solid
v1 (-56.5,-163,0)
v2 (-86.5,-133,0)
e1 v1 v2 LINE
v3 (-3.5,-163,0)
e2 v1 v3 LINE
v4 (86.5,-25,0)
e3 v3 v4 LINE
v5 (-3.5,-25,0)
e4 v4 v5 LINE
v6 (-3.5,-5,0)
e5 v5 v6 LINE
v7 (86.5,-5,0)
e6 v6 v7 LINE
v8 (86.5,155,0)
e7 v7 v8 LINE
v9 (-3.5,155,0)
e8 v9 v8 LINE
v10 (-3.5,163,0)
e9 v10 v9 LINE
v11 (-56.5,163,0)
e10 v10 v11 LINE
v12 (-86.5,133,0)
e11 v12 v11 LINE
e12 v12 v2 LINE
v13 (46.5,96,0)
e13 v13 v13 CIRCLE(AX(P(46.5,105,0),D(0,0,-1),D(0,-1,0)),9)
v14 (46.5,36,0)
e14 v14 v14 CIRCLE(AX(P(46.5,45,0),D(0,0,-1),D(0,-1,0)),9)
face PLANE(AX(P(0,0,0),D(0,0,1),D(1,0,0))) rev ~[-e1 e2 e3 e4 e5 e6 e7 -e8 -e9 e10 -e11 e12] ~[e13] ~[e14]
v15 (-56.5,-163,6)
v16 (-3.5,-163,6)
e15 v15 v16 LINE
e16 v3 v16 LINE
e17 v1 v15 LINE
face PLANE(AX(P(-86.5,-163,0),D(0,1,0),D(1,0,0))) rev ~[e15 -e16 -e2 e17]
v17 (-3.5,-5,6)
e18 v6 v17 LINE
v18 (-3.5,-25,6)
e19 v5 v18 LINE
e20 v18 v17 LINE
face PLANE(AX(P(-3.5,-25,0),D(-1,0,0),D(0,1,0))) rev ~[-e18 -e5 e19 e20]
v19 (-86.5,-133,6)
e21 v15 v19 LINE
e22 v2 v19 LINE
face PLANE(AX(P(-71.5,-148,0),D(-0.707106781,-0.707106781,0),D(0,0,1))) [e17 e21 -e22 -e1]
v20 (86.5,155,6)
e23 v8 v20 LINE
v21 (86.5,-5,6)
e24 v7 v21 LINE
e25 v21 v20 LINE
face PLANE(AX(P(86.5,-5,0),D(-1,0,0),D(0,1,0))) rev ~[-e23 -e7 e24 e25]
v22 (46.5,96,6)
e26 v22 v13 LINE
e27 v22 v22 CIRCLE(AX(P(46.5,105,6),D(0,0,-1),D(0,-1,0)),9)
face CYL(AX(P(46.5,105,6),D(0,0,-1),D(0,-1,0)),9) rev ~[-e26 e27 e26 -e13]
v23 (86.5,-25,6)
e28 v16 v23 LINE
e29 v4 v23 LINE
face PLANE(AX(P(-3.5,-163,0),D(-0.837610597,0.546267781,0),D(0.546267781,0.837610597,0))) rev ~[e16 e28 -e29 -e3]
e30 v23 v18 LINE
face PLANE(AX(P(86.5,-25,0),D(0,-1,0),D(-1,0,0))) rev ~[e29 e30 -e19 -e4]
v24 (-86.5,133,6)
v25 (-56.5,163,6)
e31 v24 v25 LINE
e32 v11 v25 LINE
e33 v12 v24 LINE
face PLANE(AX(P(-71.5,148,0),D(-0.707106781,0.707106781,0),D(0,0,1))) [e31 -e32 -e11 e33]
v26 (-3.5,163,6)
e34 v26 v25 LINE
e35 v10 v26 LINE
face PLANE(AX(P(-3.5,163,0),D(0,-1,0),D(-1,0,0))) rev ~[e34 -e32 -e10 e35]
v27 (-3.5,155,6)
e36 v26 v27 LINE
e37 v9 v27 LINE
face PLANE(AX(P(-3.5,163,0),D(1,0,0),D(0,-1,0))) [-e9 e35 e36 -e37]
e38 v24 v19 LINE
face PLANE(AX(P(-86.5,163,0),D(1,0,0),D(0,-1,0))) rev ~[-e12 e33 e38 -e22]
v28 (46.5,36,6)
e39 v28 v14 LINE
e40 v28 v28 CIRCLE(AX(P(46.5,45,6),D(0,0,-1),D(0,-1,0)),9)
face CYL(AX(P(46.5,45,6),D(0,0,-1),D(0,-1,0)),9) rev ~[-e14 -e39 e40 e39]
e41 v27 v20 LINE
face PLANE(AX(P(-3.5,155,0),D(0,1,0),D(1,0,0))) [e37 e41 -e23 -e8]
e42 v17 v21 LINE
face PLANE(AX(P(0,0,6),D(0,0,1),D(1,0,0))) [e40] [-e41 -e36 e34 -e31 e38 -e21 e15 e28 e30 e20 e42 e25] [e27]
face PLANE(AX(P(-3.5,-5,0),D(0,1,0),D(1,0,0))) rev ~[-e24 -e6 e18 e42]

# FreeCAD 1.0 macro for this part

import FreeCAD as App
import Part
import Sketcher
from FreeCAD import Vector
Q = App.Units.Quantity


def edges_at(feature, points):
    """Names of the edges that pass closest to the given points."""
    edges = feature.Shape.Edges
    near = lambda p: min(range(len(edges)), key=lambda i: edges[i].distToShape(Part.Vertex(*p))[0])
    return sorted({f"Edge{near(p) + 1}" for p in points})


def add_polygon(sketch, points):
    """Adds a closed chain of lines whose ends are joined by coincident constraints."""
    first, n = sketch.GeometryCount, len(points)
    for a, b in zip(points, points[1:] + points[:1]):
        sketch.addGeometry(Part.LineSegment(App.Vector(*a, 0), App.Vector(*b, 0)), False)
    for i in range(n):
        sketch.addConstraint(Sketcher.Constraint("Coincident", first + i, 2, first + (i + 1) % n, 1))

doc = App.newDocument("Part")
body = doc.addObject("PartDesign::Body", "Body")

# Sketch on XY plane
sketch1 = doc.addObject("Sketcher::SketchObject", "Sketch")
body.addObject(sketch1)
sketch1.AttachmentSupport = (doc.XY_Plane, [""])
sketch1.MapMode = "FlatFace"
add_polygon(sketch1, [(-4, 155), (-4, 163), (-86, 163), (-86, -163), (-4, -163), (86, -25), (-4, -25), (-4, -5), (86, -5), (86, 155)])  # lines 0-9
sketch1.addConstraint([
    Sketcher.Constraint("Vertical", 0),
    Sketcher.Constraint("Horizontal", 1),
    Sketcher.Constraint("Vertical", 2),
    Sketcher.Constraint("Horizontal", 3),
    Sketcher.Constraint("Horizontal", 5),
    Sketcher.Constraint("Vertical", 6),
    Sketcher.Constraint("Horizontal", 7),
    Sketcher.Constraint("Vertical", 8),
    Sketcher.Constraint("Horizontal", 9),
    Sketcher.Constraint("Symmetric", 0, 2, 3, 2, -1),
    Sketcher.Constraint("Vertical", 3, 2, 5, 2),
    Sketcher.Constraint("Vertical", 4, 2, 7, 2),
    Sketcher.Constraint("DistanceX", 1, 2, 1, 1, Q("83 mm")),
    Sketcher.Constraint("DistanceX", 5, 2, 5, 1, Q("90 mm")),
    Sketcher.Constraint("DistanceY", 2, 2, 2, 1, Q("326 mm")),
    Sketcher.Constraint("DistanceY", 6, 1, 6, 2, Q("20 mm")),
    Sketcher.Constraint("DistanceY", 0, 1, 0, 2, Q("8 mm")),
    Sketcher.Constraint("DistanceY", 8, 1, 8, 2, Q("160 mm")),
    Sketcher.Constraint("DistanceX", 0, 2, -1, 1, Q("3.5 mm")),
])
pad1 = doc.addObject("PartDesign::Pad", "Pad")
body.addObject(pad1)
pad1.Profile = sketch1
pad1.Length = 6
doc.recompute()

chamfer = doc.addObject("PartDesign::Chamfer", "Chamfer")
body.addObject(chamfer)
chamfer.Base = (pad1, edges_at(pad1, [(-86.5, -163, 3), (-86.5, 163, 3)]))
chamfer.Size = 30

# Sketch on XY plane
sketch2 = doc.addObject("Sketcher::SketchObject", "Sketch001")
body.addObject(sketch2)
sketch2.AttachmentSupport = (doc.XY_Plane, [""])
sketch2.MapMode = "FlatFace"
sketch2.AttachmentOffset = App.Placement(Vector(0, 0, 6), App.Rotation())
sketch2.addGeometry([
    Part.Circle(Vector(46, 105, 0), Vector(0, 0, 1), 9),
    Part.Circle(Vector(46, 45, 0), Vector(0, 0, 1), 9),
], False)
sketch2.addConstraint([
    Sketcher.Constraint("Equal", 0, 1),
    Sketcher.Constraint("Vertical", 0, 3, 1, 3),
    Sketcher.Constraint("Diameter", 0, Q("18 mm")),
    Sketcher.Constraint("DistanceY", -1, 1, 0, 3, Q("105 mm")),
    Sketcher.Constraint("DistanceY", -1, 1, 1, 3, Q("45 mm")),
    Sketcher.Constraint("DistanceX", -1, 1, 0, 3, Q("46.5 mm")),
])
doc.recompute()
hole = doc.addObject("PartDesign::Hole", "Hole")
body.addObject(hole)
hole.Profile = sketch2
hole.ThreadType = "None"
hole.Diameter = 18
hole.DepthType = "ThroughAll"

doc.recompute()
